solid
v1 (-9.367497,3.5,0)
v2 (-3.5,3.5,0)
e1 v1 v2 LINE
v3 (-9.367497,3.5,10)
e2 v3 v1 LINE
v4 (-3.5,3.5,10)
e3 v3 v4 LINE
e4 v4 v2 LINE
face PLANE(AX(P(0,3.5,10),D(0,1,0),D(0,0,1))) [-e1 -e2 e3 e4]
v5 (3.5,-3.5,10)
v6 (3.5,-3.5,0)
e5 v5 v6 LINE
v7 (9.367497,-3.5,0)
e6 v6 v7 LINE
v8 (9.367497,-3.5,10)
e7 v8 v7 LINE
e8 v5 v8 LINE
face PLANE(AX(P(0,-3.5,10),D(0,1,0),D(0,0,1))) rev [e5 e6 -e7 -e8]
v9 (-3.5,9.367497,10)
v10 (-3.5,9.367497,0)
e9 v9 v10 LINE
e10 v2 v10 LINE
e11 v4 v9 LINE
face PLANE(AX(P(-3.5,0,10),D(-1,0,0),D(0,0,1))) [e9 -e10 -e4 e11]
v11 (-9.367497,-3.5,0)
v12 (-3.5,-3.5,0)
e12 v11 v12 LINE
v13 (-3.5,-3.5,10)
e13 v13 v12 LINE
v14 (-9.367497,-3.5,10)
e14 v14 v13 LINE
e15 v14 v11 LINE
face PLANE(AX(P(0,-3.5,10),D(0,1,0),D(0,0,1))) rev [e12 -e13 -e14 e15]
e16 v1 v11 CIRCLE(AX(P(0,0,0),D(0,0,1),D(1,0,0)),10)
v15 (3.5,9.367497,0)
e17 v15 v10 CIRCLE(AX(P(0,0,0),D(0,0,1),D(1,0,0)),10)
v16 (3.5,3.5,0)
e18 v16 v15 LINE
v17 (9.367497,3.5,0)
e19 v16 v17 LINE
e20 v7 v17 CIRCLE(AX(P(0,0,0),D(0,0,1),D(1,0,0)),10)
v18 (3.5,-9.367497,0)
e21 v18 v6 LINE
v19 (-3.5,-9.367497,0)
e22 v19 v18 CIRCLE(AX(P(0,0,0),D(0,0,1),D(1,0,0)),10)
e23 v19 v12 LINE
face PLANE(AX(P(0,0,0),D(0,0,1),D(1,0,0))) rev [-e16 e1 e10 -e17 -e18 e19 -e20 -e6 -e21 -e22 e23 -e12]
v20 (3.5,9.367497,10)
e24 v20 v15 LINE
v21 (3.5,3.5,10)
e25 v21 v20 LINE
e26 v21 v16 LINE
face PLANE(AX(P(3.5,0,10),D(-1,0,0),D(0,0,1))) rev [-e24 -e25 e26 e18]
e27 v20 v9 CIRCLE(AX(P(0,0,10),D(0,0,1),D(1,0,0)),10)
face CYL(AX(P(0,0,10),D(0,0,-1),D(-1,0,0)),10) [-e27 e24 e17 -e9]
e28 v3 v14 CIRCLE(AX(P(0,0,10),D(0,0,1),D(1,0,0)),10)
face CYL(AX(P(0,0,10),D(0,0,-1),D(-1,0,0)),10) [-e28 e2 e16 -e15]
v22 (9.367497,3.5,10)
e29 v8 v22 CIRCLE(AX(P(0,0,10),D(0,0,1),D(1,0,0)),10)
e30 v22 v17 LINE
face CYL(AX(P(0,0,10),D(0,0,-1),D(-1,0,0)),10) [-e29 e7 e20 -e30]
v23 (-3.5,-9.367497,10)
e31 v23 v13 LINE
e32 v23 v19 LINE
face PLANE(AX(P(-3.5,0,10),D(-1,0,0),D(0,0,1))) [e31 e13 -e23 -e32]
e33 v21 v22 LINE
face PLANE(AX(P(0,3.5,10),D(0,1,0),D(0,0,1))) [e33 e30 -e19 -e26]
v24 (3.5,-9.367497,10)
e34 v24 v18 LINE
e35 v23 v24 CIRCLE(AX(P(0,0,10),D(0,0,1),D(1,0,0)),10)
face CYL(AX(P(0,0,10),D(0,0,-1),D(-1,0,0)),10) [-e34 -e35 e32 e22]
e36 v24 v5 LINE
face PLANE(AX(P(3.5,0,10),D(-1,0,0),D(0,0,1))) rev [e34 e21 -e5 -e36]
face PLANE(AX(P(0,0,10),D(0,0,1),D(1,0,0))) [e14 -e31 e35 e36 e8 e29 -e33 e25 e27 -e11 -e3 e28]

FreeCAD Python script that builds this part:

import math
import FreeCAD as App
import Part
import Sketcher
Q = App.Units.Quantity

doc = App.newDocument("Part")
body = doc.addObject("PartDesign::Body", "Body")

sketch1 = doc.addObject("Sketcher::SketchObject", "Sketch")
body.addObject(sketch1)
sketch1.AttachmentSupport = (doc.XY_Plane, [""])
sketch1.MapMode = "FlatFace"
sketch1.addGeometry(Part.ArcOfCircle(Part.Circle(App.Vector(0, 0, 0), App.Vector(0, 0, 1), 10), math.radians(70), math.radians(110)), False)
sketch1.addGeometry(Part.LineSegment(App.Vector(-3.5, 9.4, 0), App.Vector(-3.5, 3.5, 0)), False)
sketch1.addGeometry(Part.LineSegment(App.Vector(-3.5, 3.5, 0), App.Vector(-9.4, 3.5, 0)), False)
sketch1.addGeometry(Part.ArcOfCircle(Part.Circle(App.Vector(0, 0, 0), App.Vector(0, 0, 1), 10), math.radians(160), math.radians(200)), False)
sketch1.addGeometry(Part.LineSegment(App.Vector(-9.4, -3.5, 0), App.Vector(-3.5, -3.5, 0)), False)
sketch1.addGeometry(Part.LineSegment(App.Vector(-3.5, -3.5, 0), App.Vector(-3.5, -9.4, 0)), False)
sketch1.addGeometry(Part.ArcOfCircle(Part.Circle(App.Vector(0, 0, 0), App.Vector(0, 0, 1), 10), math.radians(-110), math.radians(-90)), False)
sketch1.addGeometry(Part.ArcOfCircle(Part.Circle(App.Vector(0, 0, 0), App.Vector(0, 0, 1), 10), math.radians(-90), math.radians(-70)), False)
sketch1.addGeometry(Part.LineSegment(App.Vector(3.5, -9.4, 0), App.Vector(3.5, -3.5, 0)), False)
sketch1.addGeometry(Part.LineSegment(App.Vector(3.5, -3.5, 0), App.Vector(9.4, -3.5, 0)), False)
sketch1.addGeometry(Part.ArcOfCircle(Part.Circle(App.Vector(0, 0, 0), App.Vector(0, 0, 1), 10), math.radians(-20), math.radians(0)), False)
sketch1.addGeometry(Part.ArcOfCircle(Part.Circle(App.Vector(0, 0, 0), App.Vector(0, 0, 1), 10), math.radians(0), math.radians(20)), False)
sketch1.addGeometry(Part.LineSegment(App.Vector(9.4, 3.5, 0), App.Vector(3.5, 3.5, 0)), False)
sketch1.addGeometry(Part.LineSegment(App.Vector(3.5, 3.5, 0), App.Vector(3.5, 9.4, 0)), False)
sketch1.addConstraint(Sketcher.Constraint("Coincident", 0, 2, 1, 1))
sketch1.addConstraint(Sketcher.Constraint("Coincident", 1, 2, 2, 1))
sketch1.addConstraint(Sketcher.Constraint("Coincident", 2, 2, 3, 1))
sketch1.addConstraint(Sketcher.Constraint("Coincident", 3, 2, 4, 1))
sketch1.addConstraint(Sketcher.Constraint("Coincident", 4, 2, 5, 1))
sketch1.addConstraint(Sketcher.Constraint("Coincident", 5, 2, 6, 1))
sketch1.addConstraint(Sketcher.Constraint("Tangent", 6, 2, 7, 1))
sketch1.addConstraint(Sketcher.Constraint("Coincident", 7, 2, 8, 1))
sketch1.addConstraint(Sketcher.Constraint("Coincident", 8, 2, 9, 1))
sketch1.addConstraint(Sketcher.Constraint("Coincident", 9, 2, 10, 1))
sketch1.addConstraint(Sketcher.Constraint("Tangent", 10, 2, 11, 1))
sketch1.addConstraint(Sketcher.Constraint("Coincident", 11, 2, 12, 1))
sketch1.addConstraint(Sketcher.Constraint("Coincident", 12, 2, 13, 1))
sketch1.addConstraint(Sketcher.Constraint("Coincident", 13, 2, 0, 1))
sketch1.addConstraint(Sketcher.Constraint("Vertical", 1))
sketch1.addConstraint(Sketcher.Constraint("Horizontal", 2))
sketch1.addConstraint(Sketcher.Constraint("Horizontal", 4))
sketch1.addConstraint(Sketcher.Constraint("Vertical", 5))
sketch1.addConstraint(Sketcher.Constraint("Vertical", 8))
sketch1.addConstraint(Sketcher.Constraint("Horizontal", 9))
sketch1.addConstraint(Sketcher.Constraint("Horizontal", 12))
sketch1.addConstraint(Sketcher.Constraint("Vertical", 13))
sketch1.addConstraint(Sketcher.Constraint("Coincident", 0, 3, -1, 1))
sketch1.addConstraint(Sketcher.Constraint("Coincident", 3, 3, -1, 1))
sketch1.addConstraint(Sketcher.Constraint("Coincident", 6, 3, -1, 1))
sketch1.addConstraint(Sketcher.Constraint("Coincident", 10, 3, -1, 1))
sketch1.addConstraint(Sketcher.Constraint("Equal", 0, 3))
sketch1.addConstraint(Sketcher.Constraint("Equal", 3, 6))
sketch1.addConstraint(Sketcher.Constraint("Equal", 6, 7))
sketch1.addConstraint(Sketcher.Constraint("Equal", 7, 10))
sketch1.addConstraint(Sketcher.Constraint("Equal", 10, 11))
sketch1.addConstraint(Sketcher.Constraint("Symmetric", 1, 2, 8, 2, -1, 1))
sketch1.addConstraint(Sketcher.Constraint("Symmetric", 4, 2, 12, 2, -1, 1))
sketch1.addConstraint(Sketcher.Constraint("Symmetric", 4, 2, 8, 2, -2))
sketch1.addConstraint(Sketcher.Constraint("PointOnObject", 6, 2, -2))
sketch1.addConstraint(Sketcher.Constraint("PointOnObject", 10, 2, -1))
sketch1.addConstraint(Sketcher.Constraint("Equal", 12, 1))
sketch1.addConstraint(Sketcher.Constraint("Radius", 0, Q("10 mm")))
sketch1.addConstraint(Sketcher.Constraint("DistanceY", 3, 2, 2, 2, Q("7 mm")))
pad1 = doc.addObject("PartDesign::Pad", "Pad")
body.addObject(pad1)
pad1.Profile = sketch1
pad1.Length = 10

doc.recompute()
